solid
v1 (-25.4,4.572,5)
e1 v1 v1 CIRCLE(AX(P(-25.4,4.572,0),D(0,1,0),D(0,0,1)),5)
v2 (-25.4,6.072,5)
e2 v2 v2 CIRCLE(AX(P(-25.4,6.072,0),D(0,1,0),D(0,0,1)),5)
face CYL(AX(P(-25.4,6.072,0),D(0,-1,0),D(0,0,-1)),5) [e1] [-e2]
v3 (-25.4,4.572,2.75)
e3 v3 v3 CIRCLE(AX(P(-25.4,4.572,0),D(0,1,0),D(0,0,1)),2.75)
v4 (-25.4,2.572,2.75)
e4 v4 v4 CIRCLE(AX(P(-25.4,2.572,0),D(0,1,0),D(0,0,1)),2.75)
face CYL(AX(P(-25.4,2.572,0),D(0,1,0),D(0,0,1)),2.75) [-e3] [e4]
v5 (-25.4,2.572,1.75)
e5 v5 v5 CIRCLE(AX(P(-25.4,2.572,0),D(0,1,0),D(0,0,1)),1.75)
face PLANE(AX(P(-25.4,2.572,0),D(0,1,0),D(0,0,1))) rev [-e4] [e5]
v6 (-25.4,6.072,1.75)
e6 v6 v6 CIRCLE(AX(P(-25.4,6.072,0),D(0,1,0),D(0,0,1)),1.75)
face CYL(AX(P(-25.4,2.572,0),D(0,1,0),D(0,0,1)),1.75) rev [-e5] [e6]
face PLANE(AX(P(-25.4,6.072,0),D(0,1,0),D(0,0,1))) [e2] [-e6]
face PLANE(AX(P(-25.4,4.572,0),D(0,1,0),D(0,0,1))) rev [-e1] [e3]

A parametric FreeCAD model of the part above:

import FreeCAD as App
import Part
import Sketcher
from FreeCAD import Vector

doc = App.newDocument("Part")
body = doc.addObject("PartDesign::Body", "Body")

sketch1 = doc.addObject("Sketcher::SketchObject", "Sketch")
body.addObject(sketch1)
sketch1.AttachmentSupport = (doc.XZ_Plane, [""])
sketch1.MapMode = "FlatFace"
sketch1.addGeometry([
    Part.Circle(Vector(0, 0, 0), Vector(0, 0, 1), 57.15),
    Part.Circle(Vector(-35.921024, 35.921024, 0), Vector(0, 0, 1), 3.175),
    Part.Circle(Vector(0, 50.8, 0), Vector(0, 0, 1), 3.175),
    Part.Circle(Vector(35.921024, 35.921024, 0), Vector(0, 0, 1), 3.175),
    Part.Circle(Vector(0, 25.4, 0), Vector(0, 0, 1), 3.175),
    Part.Circle(Vector(0, 6.35, 0), Vector(0, 0, 1), 1.397),
    Part.Circle(Vector(-50.8, 0, 0), Vector(0, 0, 1), 3.175),
    Part.Circle(Vector(-25.4, 0, 0), Vector(0, 0, 1), 3.175),
    Part.Circle(Vector(-6.35, 0, 0), Vector(0, 0, 1), 1.397),
    Part.Circle(Vector(-35.921024, -35.921024, 0), Vector(0, 0, 1), 3.175),
    Part.Circle(Vector(6.35, 0, 0), Vector(0, 0, 1), 1.397),
    Part.Circle(Vector(0, -6.35, 0), Vector(0, 0, 1), 1.397),
    Part.Circle(Vector(25.4, 0, 0), Vector(0, 0, 1), 3.175),
    Part.Circle(Vector(0, -25.4, 0), Vector(0, 0, 1), 3.175),
    Part.Circle(Vector(50.8, 0, 0), Vector(0, 0, 1), 3.175),
    Part.Circle(Vector(0, -50.8, 0), Vector(0, 0, 1), 3.175),
    Part.Circle(Vector(35.921024, -35.921024, 0), Vector(0, 0, 1), 3.175),
], False)
sketch1.addConstraint([
    Sketcher.Constraint("Coincident", 0, 3, -1, 1),
    Sketcher.Constraint("Equal", 1, 2),
    Sketcher.Constraint("Equal", 2, 3),
    Sketcher.Constraint("Equal", 3, 4),
    Sketcher.Constraint("Equal", 4, 6),
    Sketcher.Constraint("Equal", 6, 7),
    Sketcher.Constraint("Equal", 5, 8),
    Sketcher.Constraint("Equal", 7, 9),
    Sketcher.Constraint("Equal", 8, 10),
    Sketcher.Constraint("Equal", 10, 11),
    Sketcher.Constraint("Equal", 9, 12),
    Sketcher.Constraint("Equal", 12, 13),
    Sketcher.Constraint("Equal", 13, 14),
    Sketcher.Constraint("Equal", 14, 15),
    Sketcher.Constraint("Equal", 15, 16),
    Sketcher.Constraint("Symmetric", 3, 3, 9, 3, -1, 1),
    Sketcher.Constraint("Symmetric", 8, 3, 10, 3, -1, 1),
    Sketcher.Constraint("Symmetric", 5, 3, 11, 3, -1, 1),
    Sketcher.Constraint("Symmetric", 7, 3, 12, 3, -1, 1),
    Sketcher.Constraint("Symmetric", 4, 3, 13, 3, -1, 1),
    Sketcher.Constraint("Symmetric", 6, 3, 14, 3, -1, 1),
    Sketcher.Constraint("Symmetric", 2, 3, 15, 3, -1, 1),
    Sketcher.Constraint("Symmetric", 1, 3, 16, 3, -1, 1),
    Sketcher.Constraint("Symmetric", 1, 3, 3, 3, -2),
    Sketcher.Constraint("PointOnObject", 2, 3, -2),
    Sketcher.Constraint("PointOnObject", 4, 3, -2),
    Sketcher.Constraint("PointOnObject", 5, 3, -2),
    Sketcher.Constraint("PointOnObject", 6, 3, -1),
    Sketcher.Constraint("PointOnObject", 7, 3, -1),
    Sketcher.Constraint("PointOnObject", 8, 3, -1),
    Sketcher.Constraint("Diameter", 0, 114.3),
    Sketcher.Constraint("Diameter", 1, 6.35),
    Sketcher.Constraint("Diameter", 5, 2.794),
    Sketcher.Constraint("DistanceY", -1, 1, 2, 3, 50.8),
    Sketcher.Constraint("DistanceY", -1, 1, 4, 3, 25.4),
    Sketcher.Constraint("DistanceX", 6, 3, -1, 1, 50.8),
    Sketcher.Constraint("DistanceX", 7, 3, -1, 1, 25.4),
    Sketcher.Constraint("DistanceX", 8, 3, 10, 3, 12.7),
    Sketcher.Constraint("DistanceY", 11, 3, 5, 3, 12.7),
    Sketcher.Constraint("DistanceX", 1, 3, 3, 3, 71.842049),
    Sketcher.Constraint("DistanceY", -1, 1, 1, 3, 35.921024),
])
pad1 = doc.addObject("PartDesign::Pad", "Pad")
body.addObject(pad1)
pad1.Profile = sketch1
pad1.Length = 4.572
pad1.Reversed = True
body2 = doc.addObject("PartDesign::Body", "Body001")

sketch2 = doc.addObject("Sketcher::SketchObject", "Sketch001")
body2.addObject(sketch2)
sketch2.AttachmentSupport = (doc.getObject("XZ_Plane001"), [""])
sketch2.MapMode = "FlatFace"
sketch2.AttachmentOffset = App.Placement(Vector(0, 0, -4.572), App.Rotation())
sketch2.addGeometry([
    Part.Circle(Vector(-25.4, 0, 0), Vector(0, 0, 1), 2.75),
    Part.Circle(Vector(-25.4, 0, 0), Vector(0, 0, 1), 1.75),
], False)
sketch2.addConstraint([
    Sketcher.Constraint("Coincident", 1, 3, 0, 3),
    Sketcher.Constraint("PointOnObject", 0, 3, -1),
    Sketcher.Constraint("Diameter", 0, 5.5),
    Sketcher.Constraint("Diameter", 1, 3.5),
    Sketcher.Constraint("DistanceX", 0, 3, -1, 1, 25.4),
])
pad2 = doc.addObject("PartDesign::Pad", "Pad001")
body2.addObject(pad2)
pad2.Profile = sketch2
pad2.Length = 2

sketch3 = doc.addObject("Sketcher::SketchObject", "Sketch002")
body2.addObject(sketch3)
sketch3.AttachmentSupport = (doc.getObject("XZ_Plane001"), [""])
sketch3.MapMode = "FlatFace"
sketch3.AttachmentOffset = App.Placement(Vector(0, 0, -4.572), App.Rotation())
sketch3.addGeometry([
    Part.Circle(Vector(-25.4, 0, 0), Vector(0, 0, 1), 5),
    Part.Circle(Vector(-25.4, 0, 0), Vector(0, 0, 1), 1.75),
], False)
sketch3.addConstraint([
    Sketcher.Constraint("Coincident", 1, 3, 0, 3),
    Sketcher.Constraint("PointOnObject", 0, 3, -1),
    Sketcher.Constraint("Diameter", 0, 10.0),
    Sketcher.Constraint("Diameter", 1, 3.5),
    Sketcher.Constraint("DistanceX", 0, 3, -1, 1, 25.4),
])
pad3 = doc.addObject("PartDesign::Pad", "Pad002")
body2.addObject(pad3)
pad3.Profile = sketch3
pad3.Length = 1.5
pad3.Reversed = True
body.Visibility = False

doc.recompute()
